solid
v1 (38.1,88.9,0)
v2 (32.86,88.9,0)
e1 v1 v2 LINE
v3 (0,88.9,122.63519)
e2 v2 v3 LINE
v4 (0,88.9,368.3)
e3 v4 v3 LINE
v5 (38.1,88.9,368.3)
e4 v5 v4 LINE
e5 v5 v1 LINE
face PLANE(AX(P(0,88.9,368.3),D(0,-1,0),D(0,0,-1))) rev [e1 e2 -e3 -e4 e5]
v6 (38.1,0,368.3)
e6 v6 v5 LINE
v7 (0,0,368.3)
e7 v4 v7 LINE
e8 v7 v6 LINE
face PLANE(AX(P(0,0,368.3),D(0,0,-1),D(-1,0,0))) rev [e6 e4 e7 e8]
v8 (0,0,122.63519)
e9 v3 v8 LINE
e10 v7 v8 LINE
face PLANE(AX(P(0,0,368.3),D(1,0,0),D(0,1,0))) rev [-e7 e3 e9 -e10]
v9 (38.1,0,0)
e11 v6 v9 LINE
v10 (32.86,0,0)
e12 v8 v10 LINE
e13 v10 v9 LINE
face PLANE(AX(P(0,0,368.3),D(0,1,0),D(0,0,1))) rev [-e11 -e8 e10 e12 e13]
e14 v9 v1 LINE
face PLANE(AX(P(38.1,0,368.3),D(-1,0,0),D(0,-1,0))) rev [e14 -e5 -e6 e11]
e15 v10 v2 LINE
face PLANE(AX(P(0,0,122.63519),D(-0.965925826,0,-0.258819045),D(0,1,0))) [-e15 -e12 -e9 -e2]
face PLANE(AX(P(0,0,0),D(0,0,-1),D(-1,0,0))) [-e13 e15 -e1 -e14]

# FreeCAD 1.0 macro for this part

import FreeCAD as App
import Part
import Sketcher
from FreeCAD import Vector
Q = App.Units.Quantity


def edges_at(feature, points):
    """Names of the edges that pass closest to the given points."""
    edges = feature.Shape.Edges
    near = lambda p: min(range(len(edges)), key=lambda i: edges[i].distToShape(Part.Vertex(*p))[0])
    return sorted({f"Edge{near(p) + 1}" for p in points})


def add_polygon(sketch, points):
    """Adds a closed chain of lines whose ends are joined by coincident constraints."""
    first, n = sketch.GeometryCount, len(points)
    for a, b in zip(points, points[1:] + points[:1]):
        sketch.addGeometry(Part.LineSegment(App.Vector(*a, 0), App.Vector(*b, 0)), False)
    for i in range(n):
        sketch.addConstraint(Sketcher.Constraint("Coincident", first + i, 2, first + (i + 1) % n, 1))

doc = App.newDocument("Part")
params = doc.addObject("Spreadsheet::Sheet", "Params")
for row, (alias, value) in enumerate([
    ("sketch1_width", "1.5 in"),
    ("sketch1_height", "3.5 in"),
    ("pad1_length", "14.5 in"),
    ("chamfer_size", "32.86 mm"),
    ("chamfer_size2", "122.63519 mm"),
], start=1):
    params.set(f"A{row}", alias)
    params.set(f"B{row}", "=" + value)
    params.setAlias(f"B{row}", alias)

body = doc.addObject("PartDesign::Body", "Body")

# Sketch on XY plane
sketch1 = body.newObject("Sketcher::SketchObject", "Sketch")
sketch1.AttachmentSupport = (doc.getObject("XY_Plane"), [""])
sketch1.MapMode = "FlatFace"
add_polygon(sketch1, [(0, 89), (0, 0), (38, 0), (38, 89)])  # lines 0-3
sketch1.addConstraint([
    Sketcher.Constraint("Vertical", 0),
    Sketcher.Constraint("Horizontal", 1),
    Sketcher.Constraint("Vertical", 2),
    Sketcher.Constraint("Horizontal", 3),
    Sketcher.Constraint("Coincident", 0, 2, -1, 1),
    Sketcher.Constraint("DistanceX", 1, 1, 1, 2, Q("1.5 in")),
    Sketcher.Constraint("DistanceY", 0, 2, 0, 1, Q("3.5 in")),
])
sketch1.setExpression("Constraints[9]", "Params.sketch1_width")
sketch1.setExpression("Constraints[10]", "Params.sketch1_height")
pad1 = body.newObject("PartDesign::Pad", "Pad")
pad1.Profile = sketch1
pad1.setExpression("Length", "Params.pad1_length")
doc.recompute()

chamfer = body.newObject("PartDesign::Chamfer", "Chamfer")
chamfer.Base = (pad1, edges_at(pad1, [(0, 44.45, 0)]))
chamfer.ChamferType = "Two distances"
chamfer.setExpression("Size", "Params.chamfer_size")
chamfer.setExpression("Size2", "Params.chamfer_size2")
chamfer.FlipDirection = True

doc.recompute()
